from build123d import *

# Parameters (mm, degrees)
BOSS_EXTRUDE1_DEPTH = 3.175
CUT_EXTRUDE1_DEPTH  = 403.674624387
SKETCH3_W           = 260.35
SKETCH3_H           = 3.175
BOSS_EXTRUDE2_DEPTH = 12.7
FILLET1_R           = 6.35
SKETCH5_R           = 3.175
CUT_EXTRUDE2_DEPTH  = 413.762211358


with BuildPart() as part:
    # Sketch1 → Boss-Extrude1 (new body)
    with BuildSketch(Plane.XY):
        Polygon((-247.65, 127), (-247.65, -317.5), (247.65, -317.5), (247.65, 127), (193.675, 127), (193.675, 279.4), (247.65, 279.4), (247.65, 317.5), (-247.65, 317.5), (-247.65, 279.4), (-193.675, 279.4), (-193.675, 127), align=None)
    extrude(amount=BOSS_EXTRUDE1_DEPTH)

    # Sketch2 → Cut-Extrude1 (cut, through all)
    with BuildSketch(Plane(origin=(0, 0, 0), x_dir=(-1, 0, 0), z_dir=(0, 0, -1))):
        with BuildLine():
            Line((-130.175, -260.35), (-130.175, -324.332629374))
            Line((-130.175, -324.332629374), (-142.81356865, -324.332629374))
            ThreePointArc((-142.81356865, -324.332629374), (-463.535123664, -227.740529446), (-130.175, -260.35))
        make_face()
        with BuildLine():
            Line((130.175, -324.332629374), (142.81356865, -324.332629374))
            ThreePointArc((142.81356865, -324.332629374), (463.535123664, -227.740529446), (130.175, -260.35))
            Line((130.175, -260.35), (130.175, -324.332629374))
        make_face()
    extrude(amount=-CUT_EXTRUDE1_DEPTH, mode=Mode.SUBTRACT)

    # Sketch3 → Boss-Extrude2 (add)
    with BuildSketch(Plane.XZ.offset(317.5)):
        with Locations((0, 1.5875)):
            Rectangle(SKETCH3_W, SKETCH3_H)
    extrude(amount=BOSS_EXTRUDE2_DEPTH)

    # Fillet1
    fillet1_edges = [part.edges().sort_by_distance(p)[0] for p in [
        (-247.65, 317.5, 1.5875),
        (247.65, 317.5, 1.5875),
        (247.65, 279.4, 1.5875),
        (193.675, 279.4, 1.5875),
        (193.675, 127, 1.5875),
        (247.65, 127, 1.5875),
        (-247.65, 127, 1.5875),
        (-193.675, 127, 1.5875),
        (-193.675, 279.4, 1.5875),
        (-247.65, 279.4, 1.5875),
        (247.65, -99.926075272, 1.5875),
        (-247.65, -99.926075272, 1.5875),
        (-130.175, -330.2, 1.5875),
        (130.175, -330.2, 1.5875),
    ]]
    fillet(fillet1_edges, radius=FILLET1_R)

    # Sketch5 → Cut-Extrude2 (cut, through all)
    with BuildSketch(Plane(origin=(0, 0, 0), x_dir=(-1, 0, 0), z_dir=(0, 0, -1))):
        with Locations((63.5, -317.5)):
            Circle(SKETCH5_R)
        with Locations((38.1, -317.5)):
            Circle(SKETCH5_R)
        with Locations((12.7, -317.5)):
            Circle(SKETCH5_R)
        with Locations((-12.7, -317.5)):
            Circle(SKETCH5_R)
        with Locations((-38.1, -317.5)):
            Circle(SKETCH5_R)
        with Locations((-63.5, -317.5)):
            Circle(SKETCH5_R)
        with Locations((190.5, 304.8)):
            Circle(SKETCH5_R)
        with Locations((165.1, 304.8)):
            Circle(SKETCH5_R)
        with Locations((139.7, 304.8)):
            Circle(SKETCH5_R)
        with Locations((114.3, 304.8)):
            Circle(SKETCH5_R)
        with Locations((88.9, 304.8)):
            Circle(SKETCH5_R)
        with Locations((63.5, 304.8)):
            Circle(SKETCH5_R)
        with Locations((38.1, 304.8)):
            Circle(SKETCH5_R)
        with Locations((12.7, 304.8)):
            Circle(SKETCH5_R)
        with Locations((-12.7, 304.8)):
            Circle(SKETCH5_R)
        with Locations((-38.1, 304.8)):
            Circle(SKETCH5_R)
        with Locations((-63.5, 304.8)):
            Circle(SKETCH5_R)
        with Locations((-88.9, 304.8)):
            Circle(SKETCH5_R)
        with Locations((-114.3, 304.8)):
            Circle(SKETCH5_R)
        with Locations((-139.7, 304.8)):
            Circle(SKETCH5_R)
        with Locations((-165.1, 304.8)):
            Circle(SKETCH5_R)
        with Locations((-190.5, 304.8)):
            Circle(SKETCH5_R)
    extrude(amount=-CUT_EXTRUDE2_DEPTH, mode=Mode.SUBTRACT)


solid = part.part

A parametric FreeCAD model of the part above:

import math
import FreeCAD as App
import Part
import Sketcher
Q = App.Units.Quantity


def edges_at(feature, points):
    """Names of the edges that pass closest to the given points."""
    edges = feature.Shape.Edges
    near = lambda p: min(range(len(edges)), key=lambda i: edges[i].distToShape(Part.Vertex(*p))[0])
    return sorted({f"Edge{near(p) + 1}" for p in points})


def add_polygon(sketch, points):
    """Adds a closed chain of lines whose ends are joined by coincident constraints."""
    first, n = sketch.GeometryCount, len(points)
    for a, b in zip(points, points[1:] + points[:1]):
        sketch.addGeometry(Part.LineSegment(App.Vector(*a, 0), App.Vector(*b, 0)), False)
    for i in range(n):
        sketch.addConstraint(Sketcher.Constraint("Coincident", first + i, 2, first + (i + 1) % n, 1))

doc = App.newDocument("Part")
body = doc.addObject("PartDesign::Body", "Body")

sketch1 = body.newObject("Sketcher::SketchObject", "Sketch")
sketch1.AttachmentSupport = (doc.getObject("XY_Plane"), [""])
sketch1.MapMode = "FlatFace"
add_polygon(sketch1, [(-248, 127), (-248, -318), (248, -318), (248, 127), (194, 127), (194, 279), (248, 279), (248, 318), (-248, 318), (-248, 279), (-194, 279), (-194, 127)])
sketch1.addConstraint([
    Sketcher.Constraint("Vertical", 0),
    Sketcher.Constraint("Horizontal", 1),
    Sketcher.Constraint("Vertical", 2),
    Sketcher.Constraint("Horizontal", 3),
    Sketcher.Constraint("Vertical", 4),
    Sketcher.Constraint("Horizontal", 5),
    Sketcher.Constraint("Vertical", 6),
    Sketcher.Constraint("Horizontal", 7),
    Sketcher.Constraint("Vertical", 8),
    Sketcher.Constraint("Horizontal", 9),
    Sketcher.Constraint("Vertical", 10),
    Sketcher.Constraint("Horizontal", 11),
    Sketcher.Constraint("Symmetric", 0, 2, 6, 2, -1, 1),
    Sketcher.Constraint("Symmetric", 5, 2, 8, 2, -2),
    Sketcher.Constraint("Symmetric", 3, 2, 10, 2, -2),
    Sketcher.Constraint("Vertical", 2, 2, 5, 2),
    Sketcher.Constraint("DistanceY", 4, 1, 4, 2, Q("6 in")),
    Sketcher.Constraint("DistanceX", 1, 1, 1, 2, Q("19.5 in")),
    Sketcher.Constraint("DistanceY", 0, 2, 0, 1, Q("17.5 in")),
    Sketcher.Constraint("DistanceY", 6, 1, 6, 2, Q("1.5 in")),
    Sketcher.Constraint("DistanceX", 3, 2, 3, 1, Q("2.125 in")),
])
pad1 = body.newObject("PartDesign::Pad", "Pad")
pad1.Profile = sketch1
pad1.Length = Q("0.125 in")

sketch2 = body.newObject("Sketcher::SketchObject", "Sketch001")
sketch2.AttachmentSupport = (doc.getObject("XY_Plane"), [""])
sketch2.MapMode = "FlatFace"
sketch2.addGeometry([
    Part.LineSegment(App.Vector(130, -324, 0), App.Vector(130, -260, 0)),
    Part.ArcOfCircle(Part.Circle(App.Vector(298, -260, 0), App.Vector(0, 0, 1), 168), math.radians(-158), math.radians(180)),
    Part.LineSegment(App.Vector(143, -324, 0), App.Vector(130, -324, 0)),
    Part.LineSegment(App.Vector(-130, -324, 0), App.Vector(-143, -324, 0)),
    Part.ArcOfCircle(Part.Circle(App.Vector(-298, -260, 0), App.Vector(0, 0, 1), 168), math.radians(0), math.radians(338)),
    Part.LineSegment(App.Vector(-130, -260, 0), App.Vector(-130, -324, 0)),
], False)
sketch2.addConstraint([
    Sketcher.Constraint("Tangent", 0, 2, 1, 2),
    Sketcher.Constraint("Coincident", 1, 1, 2, 1),
    Sketcher.Constraint("Coincident", 2, 2, 0, 1),
    Sketcher.Constraint("Coincident", 3, 2, 4, 2),
    Sketcher.Constraint("Tangent", 4, 1, 5, 1),
    Sketcher.Constraint("Coincident", 5, 2, 3, 1),
    Sketcher.Constraint("Vertical", 0),
    Sketcher.Constraint("Horizontal", 2),
    Sketcher.Constraint("Horizontal", 3),
    Sketcher.Constraint("Vertical", 5),
    Sketcher.Constraint("Equal", 1, 4),
    Sketcher.Constraint("Symmetric", 1, 3, 4, 3, -2),
    Sketcher.Constraint("Horizontal", 2, 2, 3, 2),
    Sketcher.Constraint("Radius", 1, Q("6.625 in")),
    Sketcher.Constraint("DistanceX", 4, 3, 1, 3, Q("23.5 in")),
    Sketcher.Constraint("DistanceY", 1, 3, -1, 1, Q("10.25 in")),
    Sketcher.Constraint("DistanceX", 2, 2, 2, 1, Q("12.638569 mm")),
])
pocket1 = body.newObject("PartDesign::Pocket", "Pocket")
pocket1.Profile = sketch2
pocket1.Type = "ThroughAll"
pocket1.Reversed = True

sketch3 = body.newObject("Sketcher::SketchObject", "Sketch002")
sketch3.AttachmentSupport = (doc.getObject("XZ_Plane"), [""])
sketch3.MapMode = "FlatFace"
sketch3.AttachmentOffset = App.Placement(App.Vector(0, 0, 12.5 * 25.4), App.Rotation())
add_polygon(sketch3, [(-130.2, 3.2), (-130.2, 0), (130.2, 0), (130.2, 3.2)])
sketch3.addConstraint([
    Sketcher.Constraint("Vertical", 0),
    Sketcher.Constraint("Horizontal", 1),
    Sketcher.Constraint("Vertical", 2),
    Sketcher.Constraint("Horizontal", 3),
    Sketcher.Constraint("Symmetric", 0, 2, 1, 2, -1, 1),
    Sketcher.Constraint("DistanceX", 1, 1, 1, 2, Q("10.25 in")),
    Sketcher.Constraint("DistanceY", 0, 2, 0, 1, Q("0.125 in")),
])
pad2 = body.newObject("PartDesign::Pad", "Pad001")
pad2.Profile = sketch3
pad2.Length = Q("0.5 in")
doc.recompute()

fillet = body.newObject("PartDesign::Fillet", "Fillet")
fillet.Base = (pad2, edges_at(pad2, [
    (-247.65, 317.5, 1.587),
    (247.65, 317.5, 1.587),
    (247.65, 279.4, 1.587),
    (193.675, 279.4, 1.587),
    (193.675, 127, 1.587),
    (247.65, 127, 1.587),
    (-247.65, 127, 1.587),
    (-193.675, 127, 1.587),
    (-193.675, 279.4, 1.587),
    (-247.65, 279.4, 1.587),
    (247.65, -99.926, 1.587),
    (-247.65, -99.926, 1.587),
    (-130.175, -330.2, 1.587),
    (130.175, -330.2, 1.587),
]))
fillet.Radius = Q("0.25 in")

sketch4 = body.newObject("Sketcher::SketchObject", "Sketch003")
sketch4.AttachmentSupport = (doc.getObject("XY_Plane"), [""])
sketch4.MapMode = "FlatFace"
sketch4.addGeometry([
    Part.Circle(App.Vector(-63.5, -317.5, 0), App.Vector(0, 0, 1), 3.2),
    Part.Circle(App.Vector(-38.1, -317.5, 0), App.Vector(0, 0, 1), 3.2),
    Part.Circle(App.Vector(-12.7, -317.5, 0), App.Vector(0, 0, 1), 3.2),
    Part.Circle(App.Vector(12.7, -317.5, 0), App.Vector(0, 0, 1), 3.2),
    Part.Circle(App.Vector(38.1, -317.5, 0), App.Vector(0, 0, 1), 3.2),
    Part.Circle(App.Vector(63.5, -317.5, 0), App.Vector(0, 0, 1), 3.2),
    Part.Circle(App.Vector(-190.5, 304.8, 0), App.Vector(0, 0, 1), 3.2),
    Part.Circle(App.Vector(-165.1, 304.8, 0), App.Vector(0, 0, 1), 3.2),
    Part.Circle(App.Vector(-139.7, 304.8, 0), App.Vector(0, 0, 1), 3.2),
    Part.Circle(App.Vector(-114.3, 304.8, 0), App.Vector(0, 0, 1), 3.2),
    Part.Circle(App.Vector(-88.9, 304.8, 0), App.Vector(0, 0, 1), 3.2),
    Part.Circle(App.Vector(-63.5, 304.8, 0), App.Vector(0, 0, 1), 3.2),
    Part.Circle(App.Vector(-38.1, 304.8, 0), App.Vector(0, 0, 1), 3.2),
    Part.Circle(App.Vector(-12.7, 304.8, 0), App.Vector(0, 0, 1), 3.2),
    Part.Circle(App.Vector(12.7, 304.8, 0), App.Vector(0, 0, 1), 3.2),
    Part.Circle(App.Vector(38.1, 304.8, 0), App.Vector(0, 0, 1), 3.2),
    Part.Circle(App.Vector(63.5, 304.8, 0), App.Vector(0, 0, 1), 3.2),
    Part.Circle(App.Vector(88.9, 304.8, 0), App.Vector(0, 0, 1), 3.2),
    Part.Circle(App.Vector(114.3, 304.8, 0), App.Vector(0, 0, 1), 3.2),
    Part.Circle(App.Vector(139.7, 304.8, 0), App.Vector(0, 0, 1), 3.2),
    Part.Circle(App.Vector(165.1, 304.8, 0), App.Vector(0, 0, 1), 3.2),
    Part.Circle(App.Vector(190.5, 304.8, 0), App.Vector(0, 0, 1), 3.2),
], False)
sketch4.addConstraint([
    Sketcher.Constraint("Equal", 0, 1),
    Sketcher.Constraint("Equal", 1, 2),
    Sketcher.Constraint("Equal", 2, 3),
    Sketcher.Constraint("Equal", 3, 4),
    Sketcher.Constraint("Equal", 4, 5),
    Sketcher.Constraint("Equal", 5, 6),
    Sketcher.Constraint("Equal", 6, 7),
    Sketcher.Constraint("Equal", 7, 8),
    Sketcher.Constraint("Equal", 8, 9),
    Sketcher.Constraint("Equal", 9, 10),
    Sketcher.Constraint("Equal", 10, 11),
    Sketcher.Constraint("Equal", 11, 12),
    Sketcher.Constraint("Equal", 12, 13),
    Sketcher.Constraint("Equal", 13, 14),
    Sketcher.Constraint("Equal", 14, 15),
    Sketcher.Constraint("Equal", 15, 16),
    Sketcher.Constraint("Equal", 16, 17),
    Sketcher.Constraint("Equal", 17, 18),
    Sketcher.Constraint("Equal", 18, 19),
    Sketcher.Constraint("Equal", 19, 20),
    Sketcher.Constraint("Equal", 20, 21),
    Sketcher.Constraint("Symmetric", 2, 3, 3, 3, -2),
    Sketcher.Constraint("Symmetric", 1, 3, 4, 3, -2),
    Sketcher.Constraint("Symmetric", 0, 3, 5, 3, -2),
    Sketcher.Constraint("Symmetric", 13, 3, 14, 3, -2),
    Sketcher.Constraint("Symmetric", 12, 3, 15, 3, -2),
    Sketcher.Constraint("Symmetric", 11, 3, 16, 3, -2),
    Sketcher.Constraint("Symmetric", 10, 3, 17, 3, -2),
    Sketcher.Constraint("Symmetric", 9, 3, 18, 3, -2),
    Sketcher.Constraint("Symmetric", 8, 3, 19, 3, -2),
    Sketcher.Constraint("Symmetric", 7, 3, 20, 3, -2),
    Sketcher.Constraint("Symmetric", 6, 3, 21, 3, -2),
    Sketcher.Constraint("Horizontal", 0, 3, 1, 3),
    Sketcher.Constraint("Horizontal", 1, 3, 2, 3),
    Sketcher.Constraint("Horizontal", 6, 3, 7, 3),
    Sketcher.Constraint("Horizontal", 7, 3, 8, 3),
    Sketcher.Constraint("Horizontal", 8, 3, 9, 3),
    Sketcher.Constraint("Horizontal", 9, 3, 10, 3),
    Sketcher.Constraint("Horizontal", 10, 3, 11, 3),
    Sketcher.Constraint("Horizontal", 11, 3, 12, 3),
    Sketcher.Constraint("Horizontal", 12, 3, 13, 3),
    Sketcher.Constraint("Vertical", 0, 3, 11, 3),
    Sketcher.Constraint("Vertical", 1, 3, 12, 3),
    Sketcher.Constraint("Vertical", 2, 3, 13, 3),
    Sketcher.Constraint("Diameter", 0, Q("0.25 in")),
    Sketcher.Constraint("DistanceY", -1, 1, 6, 3, Q("12 in")),
    Sketcher.Constraint("DistanceX", 0, 3, 1, 3, Q("1 in")),
    Sketcher.Constraint("DistanceX", 1, 3, 2, 3, Q("1 in")),
    Sketcher.Constraint("DistanceX", 2, 3, 3, 3, Q("1 in")),
    Sketcher.Constraint("DistanceX", 6, 3, 0, 3, Q("5 in")),
    Sketcher.Constraint("DistanceX", 6, 3, 7, 3, Q("1 in")),
    Sketcher.Constraint("DistanceX", 7, 3, 8, 3, Q("1 in")),
    Sketcher.Constraint("DistanceX", 8, 3, 9, 3, Q("1 in")),
    Sketcher.Constraint("DistanceX", 9, 3, 10, 3, Q("1 in")),
    Sketcher.Constraint("DistanceY", 0, 3, -1, 1, Q("12.5 in")),
])
pocket2 = body.newObject("PartDesign::Pocket", "Pocket001")
pocket2.Profile = sketch4
pocket2.Type = "ThroughAll"
pocket2.Reversed = True

doc.recompute()
